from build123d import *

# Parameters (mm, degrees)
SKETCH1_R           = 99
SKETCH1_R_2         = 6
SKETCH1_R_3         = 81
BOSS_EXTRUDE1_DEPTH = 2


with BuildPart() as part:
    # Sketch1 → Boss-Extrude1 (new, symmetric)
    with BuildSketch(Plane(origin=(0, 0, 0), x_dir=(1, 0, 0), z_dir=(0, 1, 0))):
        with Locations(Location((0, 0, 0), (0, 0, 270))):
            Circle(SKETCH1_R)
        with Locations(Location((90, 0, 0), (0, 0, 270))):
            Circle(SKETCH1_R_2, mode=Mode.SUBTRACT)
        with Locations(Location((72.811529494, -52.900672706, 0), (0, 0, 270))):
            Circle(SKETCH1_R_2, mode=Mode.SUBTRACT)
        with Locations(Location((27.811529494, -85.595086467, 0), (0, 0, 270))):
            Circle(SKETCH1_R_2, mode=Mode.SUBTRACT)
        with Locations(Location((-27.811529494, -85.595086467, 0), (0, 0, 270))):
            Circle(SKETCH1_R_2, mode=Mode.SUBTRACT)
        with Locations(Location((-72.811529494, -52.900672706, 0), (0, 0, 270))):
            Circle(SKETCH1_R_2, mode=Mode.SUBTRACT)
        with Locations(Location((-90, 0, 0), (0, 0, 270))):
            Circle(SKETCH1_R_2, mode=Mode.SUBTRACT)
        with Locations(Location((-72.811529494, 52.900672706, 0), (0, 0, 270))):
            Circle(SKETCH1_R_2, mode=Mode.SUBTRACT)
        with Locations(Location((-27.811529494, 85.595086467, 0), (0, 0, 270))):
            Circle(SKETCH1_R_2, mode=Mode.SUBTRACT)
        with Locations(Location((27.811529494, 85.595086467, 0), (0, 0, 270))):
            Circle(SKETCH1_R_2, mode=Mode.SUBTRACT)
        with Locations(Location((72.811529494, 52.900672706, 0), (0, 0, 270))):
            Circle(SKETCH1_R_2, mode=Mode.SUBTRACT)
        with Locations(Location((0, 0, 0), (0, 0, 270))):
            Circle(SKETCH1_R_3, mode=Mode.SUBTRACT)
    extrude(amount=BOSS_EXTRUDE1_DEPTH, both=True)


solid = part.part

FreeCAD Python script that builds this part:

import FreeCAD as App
import Part
import Sketcher
Q = App.Units.Quantity

doc = App.newDocument("Part")
body = doc.addObject("PartDesign::Body", "Body")

# Sketch on XZ plane
sketch1 = body.newObject("Sketcher::SketchObject", "Sketch")
sketch1.AttachmentSupport = (doc.getObject("XZ_Plane"), [""])
sketch1.MapMode = "FlatFace"
sketch1.addGeometry([
    Part.Circle(App.Vector(0, 0, 0), App.Vector(0, 0, 1), 99),  # 0
    Part.Circle(App.Vector(-73, -53, 0), App.Vector(0, 0, 1), 6),  # 1
    Part.Circle(App.Vector(-28, -86, 0), App.Vector(0, 0, 1), 6),  # 2
    Part.Circle(App.Vector(-90, 0, 0), App.Vector(0, 0, 1), 6),  # 3
    Part.Circle(App.Vector(-73, 53, 0), App.Vector(0, 0, 1), 6),  # 4
    Part.Circle(App.Vector(-28, 86, 0), App.Vector(0, 0, 1), 6),  # 5
    Part.Circle(App.Vector(28, -86, 0), App.Vector(0, 0, 1), 6),  # 6
    Part.Circle(App.Vector(0, 0, 0), App.Vector(0, 0, 1), 81),  # 7
    Part.Circle(App.Vector(73, -53, 0), App.Vector(0, 0, 1), 6),  # 8
    Part.Circle(App.Vector(90, 0, 0), App.Vector(0, 0, 1), 6),  # 9
    Part.Circle(App.Vector(28, 86, 0), App.Vector(0, 0, 1), 6),  # 10
    Part.Circle(App.Vector(73, 53, 0), App.Vector(0, 0, 1), 6),  # 11
], False)
sketch1.addConstraint([
    Sketcher.Constraint("Coincident", 0, 3, -1, 1),
    Sketcher.Constraint("Coincident", 7, 3, -1, 1),
    Sketcher.Constraint("Equal", 1, 2),
    Sketcher.Constraint("Equal", 2, 3),
    Sketcher.Constraint("Equal", 3, 4),
    Sketcher.Constraint("Equal", 4, 5),
    Sketcher.Constraint("Equal", 5, 6),
    Sketcher.Constraint("Equal", 6, 8),
    Sketcher.Constraint("Equal", 8, 9),
    Sketcher.Constraint("Equal", 9, 10),
    Sketcher.Constraint("Equal", 10, 11),
    Sketcher.Constraint("Symmetric", 5, 3, 6, 3, -1, 1),
    Sketcher.Constraint("Symmetric", 4, 3, 8, 3, -1, 1),
    Sketcher.Constraint("Symmetric", 3, 3, 9, 3, -1, 1),
    Sketcher.Constraint("Symmetric", 2, 3, 10, 3, -1, 1),
    Sketcher.Constraint("Symmetric", 1, 3, 11, 3, -1, 1),
    Sketcher.Constraint("Symmetric", 2, 3, 6, 3, -2),
    Sketcher.Constraint("Symmetric", 1, 3, 8, 3, -2),
    Sketcher.Constraint("PointOnObject", 3, 3, -1),
    Sketcher.Constraint("Diameter", 0, Q("198 mm")),
    Sketcher.Constraint("Diameter", 1, Q("12 mm")),
    Sketcher.Constraint("Diameter", 7, Q("162 mm")),
    Sketcher.Constraint("DistanceX", 3, 3, -1, 1, Q("90 mm")),
    Sketcher.Constraint("DistanceX", 1, 3, 2, 3, Q("45 mm")),
    Sketcher.Constraint("DistanceX", 1, 3, -1, 1, Q("72.811529 mm")),
    Sketcher.Constraint("DistanceY", 2, 3, 4, 3, Q("138.495759 mm")),
    Sketcher.Constraint("DistanceY", 1, 3, -1, 1, Q("52.900673 mm")),
])
pad1 = body.newObject("PartDesign::Pad", "Pad")
pad1.Profile = sketch1
pad1.Length = 4
pad1.Midplane = True

doc.recompute()
